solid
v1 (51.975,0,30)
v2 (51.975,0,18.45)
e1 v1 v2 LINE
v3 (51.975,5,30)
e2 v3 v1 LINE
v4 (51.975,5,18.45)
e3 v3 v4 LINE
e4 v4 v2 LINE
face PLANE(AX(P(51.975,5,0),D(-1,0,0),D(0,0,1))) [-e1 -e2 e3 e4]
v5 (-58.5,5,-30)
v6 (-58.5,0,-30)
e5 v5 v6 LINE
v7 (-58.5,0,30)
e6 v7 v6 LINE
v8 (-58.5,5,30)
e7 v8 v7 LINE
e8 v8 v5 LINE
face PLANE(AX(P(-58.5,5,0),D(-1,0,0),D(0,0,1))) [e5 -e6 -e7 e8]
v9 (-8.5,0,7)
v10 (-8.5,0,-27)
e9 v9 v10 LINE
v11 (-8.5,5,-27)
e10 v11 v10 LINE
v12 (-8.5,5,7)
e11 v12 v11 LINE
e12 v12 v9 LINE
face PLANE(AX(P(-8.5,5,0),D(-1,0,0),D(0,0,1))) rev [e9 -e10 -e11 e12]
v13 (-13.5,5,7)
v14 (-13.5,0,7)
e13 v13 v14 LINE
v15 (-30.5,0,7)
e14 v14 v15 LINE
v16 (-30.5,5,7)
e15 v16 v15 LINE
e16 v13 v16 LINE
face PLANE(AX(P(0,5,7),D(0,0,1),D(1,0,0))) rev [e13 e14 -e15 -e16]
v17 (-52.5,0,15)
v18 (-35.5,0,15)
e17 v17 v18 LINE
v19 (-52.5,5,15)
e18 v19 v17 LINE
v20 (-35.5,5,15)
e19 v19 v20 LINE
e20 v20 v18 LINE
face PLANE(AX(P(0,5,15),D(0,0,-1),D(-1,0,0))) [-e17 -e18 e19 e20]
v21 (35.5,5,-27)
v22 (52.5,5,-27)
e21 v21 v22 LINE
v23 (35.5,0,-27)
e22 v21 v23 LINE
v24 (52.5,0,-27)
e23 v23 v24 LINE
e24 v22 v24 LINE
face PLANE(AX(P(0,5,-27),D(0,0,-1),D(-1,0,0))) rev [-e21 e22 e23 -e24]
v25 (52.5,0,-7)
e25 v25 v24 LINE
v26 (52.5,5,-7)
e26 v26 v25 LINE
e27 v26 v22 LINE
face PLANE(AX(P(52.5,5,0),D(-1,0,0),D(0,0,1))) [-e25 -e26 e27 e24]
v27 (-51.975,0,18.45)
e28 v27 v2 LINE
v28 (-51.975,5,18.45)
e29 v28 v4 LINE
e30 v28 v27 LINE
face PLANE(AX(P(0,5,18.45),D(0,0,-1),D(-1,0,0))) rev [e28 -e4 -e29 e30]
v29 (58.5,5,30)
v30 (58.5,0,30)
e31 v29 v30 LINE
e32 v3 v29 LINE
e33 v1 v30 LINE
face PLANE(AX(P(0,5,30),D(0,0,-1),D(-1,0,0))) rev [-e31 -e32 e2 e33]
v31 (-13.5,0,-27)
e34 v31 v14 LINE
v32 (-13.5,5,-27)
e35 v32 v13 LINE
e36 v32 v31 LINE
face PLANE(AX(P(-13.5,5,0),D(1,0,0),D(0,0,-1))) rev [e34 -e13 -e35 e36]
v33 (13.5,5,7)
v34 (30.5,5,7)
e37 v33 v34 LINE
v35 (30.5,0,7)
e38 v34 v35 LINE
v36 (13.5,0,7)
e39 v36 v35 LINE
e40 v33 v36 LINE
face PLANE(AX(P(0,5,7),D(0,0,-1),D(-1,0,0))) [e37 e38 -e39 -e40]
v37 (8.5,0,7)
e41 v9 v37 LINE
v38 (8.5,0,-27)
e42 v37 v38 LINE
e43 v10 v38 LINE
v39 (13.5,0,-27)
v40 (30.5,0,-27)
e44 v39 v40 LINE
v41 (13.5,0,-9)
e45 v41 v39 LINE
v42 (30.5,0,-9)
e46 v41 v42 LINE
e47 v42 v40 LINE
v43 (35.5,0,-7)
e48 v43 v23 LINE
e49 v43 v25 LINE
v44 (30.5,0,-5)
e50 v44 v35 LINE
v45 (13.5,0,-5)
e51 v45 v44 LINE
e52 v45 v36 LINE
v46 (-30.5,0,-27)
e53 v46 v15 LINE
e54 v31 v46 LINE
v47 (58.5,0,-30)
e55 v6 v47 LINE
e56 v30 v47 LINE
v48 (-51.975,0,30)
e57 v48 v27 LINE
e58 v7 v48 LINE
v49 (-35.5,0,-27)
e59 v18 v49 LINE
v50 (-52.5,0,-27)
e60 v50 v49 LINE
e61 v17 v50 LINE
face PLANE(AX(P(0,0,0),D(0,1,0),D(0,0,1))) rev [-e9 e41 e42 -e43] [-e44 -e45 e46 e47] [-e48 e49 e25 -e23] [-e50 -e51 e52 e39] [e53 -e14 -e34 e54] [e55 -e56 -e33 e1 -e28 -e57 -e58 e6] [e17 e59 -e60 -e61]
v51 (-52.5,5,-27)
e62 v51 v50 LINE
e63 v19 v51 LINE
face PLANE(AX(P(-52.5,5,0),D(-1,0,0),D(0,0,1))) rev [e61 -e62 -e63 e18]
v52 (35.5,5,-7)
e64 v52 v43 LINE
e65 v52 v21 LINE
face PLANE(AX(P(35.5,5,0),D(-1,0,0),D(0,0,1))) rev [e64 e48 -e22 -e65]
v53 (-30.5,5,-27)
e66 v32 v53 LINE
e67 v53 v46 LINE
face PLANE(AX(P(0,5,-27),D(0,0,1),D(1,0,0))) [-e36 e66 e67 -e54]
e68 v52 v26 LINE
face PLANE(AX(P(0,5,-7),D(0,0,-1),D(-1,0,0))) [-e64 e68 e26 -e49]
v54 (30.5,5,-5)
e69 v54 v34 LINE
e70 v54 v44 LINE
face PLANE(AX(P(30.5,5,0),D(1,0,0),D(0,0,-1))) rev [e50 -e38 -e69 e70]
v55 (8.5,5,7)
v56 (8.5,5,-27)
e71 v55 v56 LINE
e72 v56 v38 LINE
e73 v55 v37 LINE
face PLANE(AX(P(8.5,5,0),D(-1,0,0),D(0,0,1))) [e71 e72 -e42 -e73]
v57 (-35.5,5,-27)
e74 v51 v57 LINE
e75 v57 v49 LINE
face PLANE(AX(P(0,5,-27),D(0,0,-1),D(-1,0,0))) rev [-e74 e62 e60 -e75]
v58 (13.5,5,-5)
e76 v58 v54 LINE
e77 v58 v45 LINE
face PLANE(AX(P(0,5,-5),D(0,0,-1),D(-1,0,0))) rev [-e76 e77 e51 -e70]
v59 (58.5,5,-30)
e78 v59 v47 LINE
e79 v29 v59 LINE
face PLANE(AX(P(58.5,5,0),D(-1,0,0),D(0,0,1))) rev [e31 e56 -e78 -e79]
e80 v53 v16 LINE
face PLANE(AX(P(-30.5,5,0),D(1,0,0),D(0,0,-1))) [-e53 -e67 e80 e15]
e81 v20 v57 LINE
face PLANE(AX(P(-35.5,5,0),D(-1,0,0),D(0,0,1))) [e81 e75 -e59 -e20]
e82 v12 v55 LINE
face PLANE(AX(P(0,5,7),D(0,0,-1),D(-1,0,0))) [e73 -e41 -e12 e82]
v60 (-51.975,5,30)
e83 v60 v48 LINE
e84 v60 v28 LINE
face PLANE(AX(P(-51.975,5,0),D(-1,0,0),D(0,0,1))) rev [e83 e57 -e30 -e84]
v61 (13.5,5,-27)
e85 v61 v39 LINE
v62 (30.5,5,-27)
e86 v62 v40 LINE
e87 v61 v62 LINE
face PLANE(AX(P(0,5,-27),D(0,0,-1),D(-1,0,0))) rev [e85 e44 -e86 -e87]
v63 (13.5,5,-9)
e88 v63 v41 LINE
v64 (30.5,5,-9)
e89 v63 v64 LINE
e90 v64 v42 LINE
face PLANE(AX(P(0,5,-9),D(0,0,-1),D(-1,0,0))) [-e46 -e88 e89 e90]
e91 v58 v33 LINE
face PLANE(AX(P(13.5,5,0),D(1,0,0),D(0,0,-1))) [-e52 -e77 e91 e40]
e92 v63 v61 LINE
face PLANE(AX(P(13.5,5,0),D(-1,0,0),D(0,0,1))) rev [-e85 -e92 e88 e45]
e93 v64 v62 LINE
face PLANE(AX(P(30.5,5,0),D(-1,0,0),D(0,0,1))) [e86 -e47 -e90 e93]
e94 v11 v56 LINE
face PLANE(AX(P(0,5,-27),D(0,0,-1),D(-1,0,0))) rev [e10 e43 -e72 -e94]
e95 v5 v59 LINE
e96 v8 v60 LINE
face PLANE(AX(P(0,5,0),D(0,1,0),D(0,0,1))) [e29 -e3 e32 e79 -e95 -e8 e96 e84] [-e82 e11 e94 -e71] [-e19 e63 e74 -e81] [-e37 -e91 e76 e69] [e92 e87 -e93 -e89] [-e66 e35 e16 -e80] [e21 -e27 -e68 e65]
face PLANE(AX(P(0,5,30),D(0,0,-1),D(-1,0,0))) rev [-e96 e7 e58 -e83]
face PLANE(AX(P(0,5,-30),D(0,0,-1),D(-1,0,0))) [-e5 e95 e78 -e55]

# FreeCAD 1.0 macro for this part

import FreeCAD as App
import Part
import Sketcher


def add_polygon(sketch, points):
    """Adds a closed chain of lines whose ends are joined by coincident constraints."""
    first, n = sketch.GeometryCount, len(points)
    for a, b in zip(points, points[1:] + points[:1]):
        sketch.addGeometry(Part.LineSegment(App.Vector(*a, 0), App.Vector(*b, 0)), False)
    for i in range(n):
        sketch.addConstraint(Sketcher.Constraint("Coincident", first + i, 2, first + (i + 1) % n, 1))

doc = App.newDocument("Part")
body = doc.addObject("PartDesign::Body", "Body")

# Sketch on XZ plane
sketch1 = body.newObject("Sketcher::SketchObject", "Sketch")
sketch1.AttachmentSupport = (doc.getObject("XZ_Plane"), [""])
sketch1.MapMode = "FlatFace"
add_polygon(sketch1, [(-58, -30), (-58, 30), (-52, 30), (-52, 18), (52, 18), (52, 30), (58, 30), (58, -30)])  # lines 0-7
add_polygon(sketch1, [(30, 7), (14, 7), (14, -5), (30, -5)])  # lines 8-11
add_polygon(sketch1, [(-36, 15), (-52, 15), (-52, -27), (-36, -27)])  # lines 12-15
add_polygon(sketch1, [(-14, 7), (-30, 7), (-30, -27), (-14, -27)])  # lines 16-19
add_polygon(sketch1, [(8, 7), (-8, 7), (-8, -27), (8, -27)])  # lines 20-23
add_polygon(sketch1, [(30, -9), (14, -9), (14, -27), (30, -27)])  # lines 24-27
add_polygon(sketch1, [(52, -7), (36, -7), (36, -27), (52, -27)])  # lines 28-31
sketch1.addConstraint([
    Sketcher.Constraint("Vertical", 0),
    Sketcher.Constraint("Horizontal", 1),
    Sketcher.Constraint("Vertical", 2),
    Sketcher.Constraint("Horizontal", 3),
    Sketcher.Constraint("Vertical", 4),
    Sketcher.Constraint("Horizontal", 5),
    Sketcher.Constraint("Vertical", 6),
    Sketcher.Constraint("Horizontal", 7),
    Sketcher.Constraint("Horizontal", 8),
    Sketcher.Constraint("Vertical", 9),
    Sketcher.Constraint("Horizontal", 10),
    Sketcher.Constraint("Vertical", 11),
    Sketcher.Constraint("Horizontal", 12),
    Sketcher.Constraint("Vertical", 13),
    Sketcher.Constraint("Horizontal", 14),
    Sketcher.Constraint("Vertical", 15),
    Sketcher.Constraint("Horizontal", 16),
    Sketcher.Constraint("Vertical", 17),
    Sketcher.Constraint("Horizontal", 18),
    Sketcher.Constraint("Vertical", 19),
    Sketcher.Constraint("Horizontal", 20),
    Sketcher.Constraint("Vertical", 21),
    Sketcher.Constraint("Horizontal", 22),
    Sketcher.Constraint("Vertical", 23),
    Sketcher.Constraint("Horizontal", 24),
    Sketcher.Constraint("Vertical", 25),
    Sketcher.Constraint("Horizontal", 26),
    Sketcher.Constraint("Vertical", 27),
    Sketcher.Constraint("Horizontal", 28),
    Sketcher.Constraint("Vertical", 29),
    Sketcher.Constraint("Horizontal", 30),
    Sketcher.Constraint("Vertical", 31),
    Sketcher.Constraint("Symmetric", 0, 2, 6, 2, -1, 1),
    Sketcher.Constraint("Symmetric", 1, 2, 4, 2, -2),
    Sketcher.Constraint("Symmetric", 11, 2, 16, 2, -2),
    Sketcher.Constraint("Symmetric", 18, 2, 25, 2, -2),
    Sketcher.Constraint("Symmetric", 14, 2, 29, 2, -2),
    Sketcher.Constraint("Horizontal", 14, 2, 17, 2),
    Sketcher.Constraint("Horizontal", 19, 2, 20, 2),
    Sketcher.Constraint("Horizontal", 18, 2, 21, 2),
    Sketcher.Constraint("Vertical", 9, 2, 24, 2),
    Sketcher.Constraint("Vertical", 11, 2, 26, 2),
    Sketcher.Constraint("Equal", 10, 12),
    Sketcher.Constraint("Equal", 18, 20),
    Sketcher.Constraint("Equal", 26, 28),
    Sketcher.Constraint("DistanceX", 7, 2, 7, 1, 117.0),
    Sketcher.Constraint("DistanceX", 8, 2, 8, 1, 17.0),
    Sketcher.Constraint("DistanceY", 0, 1, 0, 2, 60.0),
    Sketcher.Constraint("DistanceY", 9, 2, 9, 1, 12.0),
    Sketcher.Constraint("DistanceY", 13, 2, 13, 1, 42.0),
    Sketcher.Constraint("DistanceY", 17, 2, 17, 1, 34.0),
    Sketcher.Constraint("DistanceY", 25, 2, 25, 1, 18.0),
    Sketcher.Constraint("DistanceY", 29, 2, 29, 1, 20.0),
    Sketcher.Constraint("DistanceY", -1, 1, 8, 2, 7.0),
    Sketcher.Constraint("DistanceX", 8, 2, 5, 2, 45.0),
    Sketcher.Constraint("DistanceX", 0, 2, 12, 2, 6.0),
    Sketcher.Constraint("DistanceX", 19, 2, 20, 2, 5.0),
    Sketcher.Constraint("DistanceX", 3, 1, 3, 2, 103.95),
    Sketcher.Constraint("DistanceY", 2, 2, 2, 1, 11.55),
])
pad1 = body.newObject("PartDesign::Pad", "Pad")
pad1.Profile = sketch1
pad1.Length = 5
pad1.Reversed = True

doc.recompute()
